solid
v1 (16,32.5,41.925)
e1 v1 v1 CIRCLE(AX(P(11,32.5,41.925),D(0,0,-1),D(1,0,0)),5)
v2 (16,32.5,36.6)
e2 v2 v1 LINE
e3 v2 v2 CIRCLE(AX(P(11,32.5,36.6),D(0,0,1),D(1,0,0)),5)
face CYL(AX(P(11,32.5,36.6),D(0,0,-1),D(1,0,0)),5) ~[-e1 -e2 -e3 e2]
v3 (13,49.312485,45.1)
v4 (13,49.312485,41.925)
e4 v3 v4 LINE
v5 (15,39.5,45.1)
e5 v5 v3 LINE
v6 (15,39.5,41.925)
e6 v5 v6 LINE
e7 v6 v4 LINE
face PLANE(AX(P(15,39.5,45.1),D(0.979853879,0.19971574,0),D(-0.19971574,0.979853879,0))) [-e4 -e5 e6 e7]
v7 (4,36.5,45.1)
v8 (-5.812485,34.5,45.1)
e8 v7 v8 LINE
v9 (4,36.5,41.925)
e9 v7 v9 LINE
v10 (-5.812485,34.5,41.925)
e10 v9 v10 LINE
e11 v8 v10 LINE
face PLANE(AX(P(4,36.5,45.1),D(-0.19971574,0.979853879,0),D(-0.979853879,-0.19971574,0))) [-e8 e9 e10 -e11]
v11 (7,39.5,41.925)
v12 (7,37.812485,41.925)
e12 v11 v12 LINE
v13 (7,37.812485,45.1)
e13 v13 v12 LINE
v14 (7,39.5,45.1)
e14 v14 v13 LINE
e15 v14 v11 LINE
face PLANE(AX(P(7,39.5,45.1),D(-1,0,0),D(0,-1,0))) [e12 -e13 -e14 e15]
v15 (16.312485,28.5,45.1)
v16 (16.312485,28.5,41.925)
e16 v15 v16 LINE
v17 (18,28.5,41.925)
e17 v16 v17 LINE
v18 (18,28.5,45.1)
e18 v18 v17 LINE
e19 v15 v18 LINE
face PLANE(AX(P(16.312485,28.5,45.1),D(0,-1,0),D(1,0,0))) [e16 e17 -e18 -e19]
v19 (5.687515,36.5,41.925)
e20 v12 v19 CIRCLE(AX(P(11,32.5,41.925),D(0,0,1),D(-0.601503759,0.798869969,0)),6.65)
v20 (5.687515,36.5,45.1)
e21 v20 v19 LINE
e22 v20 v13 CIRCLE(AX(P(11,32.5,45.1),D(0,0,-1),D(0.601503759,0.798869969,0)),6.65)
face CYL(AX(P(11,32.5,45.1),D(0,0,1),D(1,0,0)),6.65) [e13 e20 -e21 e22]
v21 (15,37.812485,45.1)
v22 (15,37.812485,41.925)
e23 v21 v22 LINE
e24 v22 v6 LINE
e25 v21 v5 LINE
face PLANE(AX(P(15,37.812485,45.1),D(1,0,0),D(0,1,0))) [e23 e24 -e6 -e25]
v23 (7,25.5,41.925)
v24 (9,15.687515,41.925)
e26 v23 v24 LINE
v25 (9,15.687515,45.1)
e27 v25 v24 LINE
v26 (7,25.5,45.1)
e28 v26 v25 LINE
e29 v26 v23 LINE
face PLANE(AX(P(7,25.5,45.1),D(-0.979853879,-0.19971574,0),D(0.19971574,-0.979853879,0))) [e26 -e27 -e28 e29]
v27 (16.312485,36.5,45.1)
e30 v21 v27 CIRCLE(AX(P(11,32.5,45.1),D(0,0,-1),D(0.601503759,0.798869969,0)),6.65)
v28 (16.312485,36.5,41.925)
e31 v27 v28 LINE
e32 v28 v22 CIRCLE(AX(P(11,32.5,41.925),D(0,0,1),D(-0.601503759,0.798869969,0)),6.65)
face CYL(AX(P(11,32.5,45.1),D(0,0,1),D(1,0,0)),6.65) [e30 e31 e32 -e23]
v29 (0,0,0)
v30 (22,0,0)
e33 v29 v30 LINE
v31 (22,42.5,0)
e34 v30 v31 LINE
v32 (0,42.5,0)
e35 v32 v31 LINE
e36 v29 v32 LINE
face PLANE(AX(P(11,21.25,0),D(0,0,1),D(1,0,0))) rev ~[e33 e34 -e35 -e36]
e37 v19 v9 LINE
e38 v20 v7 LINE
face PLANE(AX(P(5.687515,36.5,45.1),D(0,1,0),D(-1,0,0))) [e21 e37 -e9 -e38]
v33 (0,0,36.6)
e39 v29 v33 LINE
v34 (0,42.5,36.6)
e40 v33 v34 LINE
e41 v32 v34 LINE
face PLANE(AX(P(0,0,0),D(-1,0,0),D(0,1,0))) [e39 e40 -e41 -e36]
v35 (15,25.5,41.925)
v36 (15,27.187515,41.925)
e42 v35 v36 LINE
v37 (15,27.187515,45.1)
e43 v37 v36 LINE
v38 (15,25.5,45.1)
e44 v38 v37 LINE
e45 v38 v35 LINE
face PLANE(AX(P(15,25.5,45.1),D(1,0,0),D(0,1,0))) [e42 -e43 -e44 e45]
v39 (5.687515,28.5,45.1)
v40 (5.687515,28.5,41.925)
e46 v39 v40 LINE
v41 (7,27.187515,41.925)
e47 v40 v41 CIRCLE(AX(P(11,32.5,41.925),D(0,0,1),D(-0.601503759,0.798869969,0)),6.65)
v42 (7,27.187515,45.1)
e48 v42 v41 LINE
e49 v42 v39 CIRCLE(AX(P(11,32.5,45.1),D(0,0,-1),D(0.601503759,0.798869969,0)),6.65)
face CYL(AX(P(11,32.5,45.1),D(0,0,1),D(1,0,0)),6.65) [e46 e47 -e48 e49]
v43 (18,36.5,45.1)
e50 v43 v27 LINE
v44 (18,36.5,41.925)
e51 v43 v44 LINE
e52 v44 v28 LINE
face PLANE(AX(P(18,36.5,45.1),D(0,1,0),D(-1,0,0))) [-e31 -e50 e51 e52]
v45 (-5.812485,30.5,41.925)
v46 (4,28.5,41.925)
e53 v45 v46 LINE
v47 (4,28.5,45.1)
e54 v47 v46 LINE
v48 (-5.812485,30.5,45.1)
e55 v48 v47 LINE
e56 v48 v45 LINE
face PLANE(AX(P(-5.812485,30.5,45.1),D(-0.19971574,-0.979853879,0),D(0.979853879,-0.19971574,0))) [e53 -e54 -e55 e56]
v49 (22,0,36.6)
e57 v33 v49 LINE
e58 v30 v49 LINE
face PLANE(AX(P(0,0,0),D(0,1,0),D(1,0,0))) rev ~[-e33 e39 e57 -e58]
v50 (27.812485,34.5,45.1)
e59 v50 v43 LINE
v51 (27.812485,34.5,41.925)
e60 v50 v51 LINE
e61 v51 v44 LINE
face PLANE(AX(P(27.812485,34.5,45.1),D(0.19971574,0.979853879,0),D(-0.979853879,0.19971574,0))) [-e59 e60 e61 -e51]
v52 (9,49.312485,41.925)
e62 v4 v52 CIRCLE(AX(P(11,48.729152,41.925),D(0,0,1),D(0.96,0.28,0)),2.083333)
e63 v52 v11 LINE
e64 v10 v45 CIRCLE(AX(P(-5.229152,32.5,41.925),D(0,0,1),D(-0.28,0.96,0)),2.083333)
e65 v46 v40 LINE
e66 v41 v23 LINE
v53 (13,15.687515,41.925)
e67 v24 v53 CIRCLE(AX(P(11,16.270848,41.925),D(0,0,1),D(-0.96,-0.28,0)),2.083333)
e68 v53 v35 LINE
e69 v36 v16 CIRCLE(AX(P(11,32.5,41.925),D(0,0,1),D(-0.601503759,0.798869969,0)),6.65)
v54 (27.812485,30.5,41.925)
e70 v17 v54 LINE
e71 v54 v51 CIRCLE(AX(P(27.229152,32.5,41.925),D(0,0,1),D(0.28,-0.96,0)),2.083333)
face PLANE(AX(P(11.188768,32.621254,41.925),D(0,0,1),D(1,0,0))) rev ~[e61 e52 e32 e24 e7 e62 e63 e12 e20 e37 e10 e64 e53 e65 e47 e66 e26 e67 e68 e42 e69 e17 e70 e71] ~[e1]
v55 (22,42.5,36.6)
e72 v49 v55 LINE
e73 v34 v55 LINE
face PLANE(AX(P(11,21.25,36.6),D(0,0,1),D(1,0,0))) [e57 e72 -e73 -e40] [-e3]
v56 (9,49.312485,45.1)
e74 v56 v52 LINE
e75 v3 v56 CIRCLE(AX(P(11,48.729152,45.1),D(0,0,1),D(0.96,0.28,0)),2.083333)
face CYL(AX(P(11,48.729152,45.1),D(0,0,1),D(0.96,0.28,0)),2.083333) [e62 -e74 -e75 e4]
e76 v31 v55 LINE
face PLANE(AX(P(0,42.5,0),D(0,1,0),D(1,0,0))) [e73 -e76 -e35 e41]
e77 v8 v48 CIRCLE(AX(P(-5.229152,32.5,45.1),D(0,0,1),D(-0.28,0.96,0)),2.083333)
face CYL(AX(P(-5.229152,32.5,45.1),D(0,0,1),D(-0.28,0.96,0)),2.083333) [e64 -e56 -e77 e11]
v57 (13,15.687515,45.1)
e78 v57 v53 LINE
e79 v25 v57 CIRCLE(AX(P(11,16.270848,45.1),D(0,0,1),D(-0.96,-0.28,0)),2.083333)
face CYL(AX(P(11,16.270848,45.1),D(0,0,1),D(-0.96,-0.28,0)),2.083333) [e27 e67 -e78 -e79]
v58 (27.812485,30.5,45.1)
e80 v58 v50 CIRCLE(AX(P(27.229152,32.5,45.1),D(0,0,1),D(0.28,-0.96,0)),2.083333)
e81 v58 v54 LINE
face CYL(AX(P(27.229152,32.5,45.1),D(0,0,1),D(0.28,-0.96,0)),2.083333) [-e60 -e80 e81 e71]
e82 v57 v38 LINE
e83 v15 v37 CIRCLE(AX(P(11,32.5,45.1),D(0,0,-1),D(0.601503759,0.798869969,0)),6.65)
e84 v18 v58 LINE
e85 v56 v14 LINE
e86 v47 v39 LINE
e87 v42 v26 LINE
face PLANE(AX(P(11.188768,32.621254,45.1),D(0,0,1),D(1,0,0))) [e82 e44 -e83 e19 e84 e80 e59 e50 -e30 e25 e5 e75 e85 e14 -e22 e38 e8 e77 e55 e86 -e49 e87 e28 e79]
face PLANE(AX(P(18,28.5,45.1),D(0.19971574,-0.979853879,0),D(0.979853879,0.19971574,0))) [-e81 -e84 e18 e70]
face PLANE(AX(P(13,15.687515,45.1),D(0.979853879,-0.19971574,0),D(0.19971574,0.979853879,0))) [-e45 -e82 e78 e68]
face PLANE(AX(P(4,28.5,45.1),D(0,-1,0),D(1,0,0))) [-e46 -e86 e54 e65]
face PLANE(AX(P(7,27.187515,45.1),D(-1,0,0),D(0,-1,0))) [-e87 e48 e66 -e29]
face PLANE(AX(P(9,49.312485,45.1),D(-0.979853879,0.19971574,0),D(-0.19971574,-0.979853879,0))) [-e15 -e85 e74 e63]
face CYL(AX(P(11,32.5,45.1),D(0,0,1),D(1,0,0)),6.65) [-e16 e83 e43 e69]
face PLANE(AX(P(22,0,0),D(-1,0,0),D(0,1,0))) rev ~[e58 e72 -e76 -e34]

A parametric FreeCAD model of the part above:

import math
import FreeCAD as App
import Part
import Sketcher

doc = App.newDocument("Part")
params = doc.addObject("Spreadsheet::Sheet", "Params")
for row, (alias, value) in enumerate([
    ("sketch1_width", "22 mm"),
    ("sketch1_height", "42.5 mm"),
    ("pad1_length", "36.6 mm"),
    ("sketch2_diameter", "10 mm"),
    ("pad2_length", "8.5 mm"),
    ("sketch3_diameter", "13.3 mm"),
    ("pad3_length", "3.175 mm"),
    ("sketch4_radius", "6.65 mm"),
    ("pad4_length", "3.175 mm"),
], start=1):
    params.set(f"A{row}", alias)
    params.set(f"B{row}", "=" + value)
    params.setAlias(f"B{row}", alias)

body = doc.addObject("PartDesign::Body", "Body")

sketch1 = body.newObject("Sketcher::SketchObject", "Sketch")
sketch1.AttachmentSupport = (doc.getObject("XY_Plane"), [""])
sketch1.MapMode = "FlatFace"
sketch1.addGeometry(Part.LineSegment(App.Vector(0, 42, 0), App.Vector(0, 0, 0)), False)
sketch1.addGeometry(Part.LineSegment(App.Vector(0, 0, 0), App.Vector(22, 0, 0)), False)
sketch1.addGeometry(Part.LineSegment(App.Vector(22, 0, 0), App.Vector(22, 42, 0)), False)
sketch1.addGeometry(Part.LineSegment(App.Vector(22, 42, 0), App.Vector(0, 42, 0)), False)
sketch1.addConstraint(Sketcher.Constraint("Coincident", 0, 2, 1, 1))
sketch1.addConstraint(Sketcher.Constraint("Coincident", 1, 2, 2, 1))
sketch1.addConstraint(Sketcher.Constraint("Coincident", 2, 2, 3, 1))
sketch1.addConstraint(Sketcher.Constraint("Coincident", 3, 2, 0, 1))
sketch1.addConstraint(Sketcher.Constraint("Vertical", 0))
sketch1.addConstraint(Sketcher.Constraint("Horizontal", 1))
sketch1.addConstraint(Sketcher.Constraint("Vertical", 2))
sketch1.addConstraint(Sketcher.Constraint("Horizontal", 3))
sketch1.addConstraint(Sketcher.Constraint("Coincident", 0, 2, -1, 1))
sketch1.addConstraint(Sketcher.Constraint("DistanceX", 1, 1, 1, 2, 22.0))
sketch1.addConstraint(Sketcher.Constraint("DistanceY", 0, 2, 0, 1, 42.5))
sketch1.setExpression("Constraints[9]", "Params.sketch1_width")
sketch1.setExpression("Constraints[10]", "Params.sketch1_height")
pad1 = body.newObject("PartDesign::Pad", "Pad")
pad1.Profile = sketch1
pad1.setExpression("Length", "Params.pad1_length")

sketch2 = body.newObject("Sketcher::SketchObject", "Sketch001")
sketch2.AttachmentSupport = (doc.getObject("XY_Plane"), [""])
sketch2.MapMode = "FlatFace"
sketch2.AttachmentOffset = App.Placement(App.Vector(0, 0, 36.6), App.Rotation())
sketch2.addGeometry(Part.Circle(App.Vector(11, 32, 0), App.Vector(0, 0, 1), 5), False)
sketch2.addConstraint(Sketcher.Constraint("Diameter", 0, 10.0))
sketch2.addConstraint(Sketcher.Constraint("DistanceX", -1, 1, 0, 3, 11.0))
sketch2.addConstraint(Sketcher.Constraint("DistanceY", -1, 1, 0, 3, 32.5))
sketch2.setExpression("Constraints[0]", "Params.sketch2_diameter")
pad2 = body.newObject("PartDesign::Pad", "Pad001")
pad2.Profile = sketch2
pad2.setExpression("Length", "Params.pad2_length")

sketch3 = body.newObject("Sketcher::SketchObject", "Sketch002")
sketch3.AttachmentSupport = (doc.getObject("XY_Plane"), [""])
sketch3.MapMode = "FlatFace"
sketch3.AttachmentOffset = App.Placement(App.Vector(0, 0, 45.1), App.Rotation())
sketch3.addGeometry(Part.Circle(App.Vector(11, 32, 0), App.Vector(0, 0, 1), 7), False)
sketch3.addConstraint(Sketcher.Constraint("Diameter", 0, 13.3))
sketch3.addConstraint(Sketcher.Constraint("DistanceX", -1, 1, 0, 3, 11.0))
sketch3.addConstraint(Sketcher.Constraint("DistanceY", -1, 1, 0, 3, 32.5))
sketch3.setExpression("Constraints[0]", "Params.sketch3_diameter")
pad3 = body.newObject("PartDesign::Pad", "Pad002")
pad3.Profile = sketch3
pad3.setExpression("Length", "Params.pad3_length")
pad3.Reversed = True
body2 = doc.addObject("PartDesign::Body", "Body001")

sketch4 = body2.newObject("Sketcher::SketchObject", "Sketch003")
sketch4.AttachmentSupport = (doc.getObject("XY_Plane001"), [""])
sketch4.MapMode = "FlatFace"
sketch4.AttachmentOffset = App.Placement(App.Vector(0, 0, 45.1), App.Rotation())
sketch4.addGeometry(Part.ArcOfCircle(Part.Circle(App.Vector(11, 32.5, 0), App.Vector(0, 0, 1), 6.7), math.radians(53), math.radians(127)), False)
sketch4.addGeometry(Part.LineSegment(App.Vector(15, 37.8, 0), App.Vector(15, 39.5, 0)), False)
sketch4.addGeometry(Part.LineSegment(App.Vector(15, 39.5, 0), App.Vector(13, 49.3, 0)), False)
sketch4.addGeometry(Part.ArcOfCircle(Part.Circle(App.Vector(11, 48.7, 0), App.Vector(0, 0, 1), 2.1), math.radians(16), math.radians(164)), False)
sketch4.addGeometry(Part.LineSegment(App.Vector(9, 49.3, 0), App.Vector(7, 39.5, 0)), False)
sketch4.addGeometry(Part.LineSegment(App.Vector(7, 39.5, 0), App.Vector(7, 37.8, 0)), False)
sketch4.addConstraint(Sketcher.Constraint("Coincident", 0, 1, 1, 1))
sketch4.addConstraint(Sketcher.Constraint("Coincident", 1, 2, 2, 1))
sketch4.addConstraint(Sketcher.Constraint("Coincident", 2, 2, 3, 1))
sketch4.addConstraint(Sketcher.Constraint("Coincident", 3, 2, 4, 1))
sketch4.addConstraint(Sketcher.Constraint("Coincident", 4, 2, 5, 1))
sketch4.addConstraint(Sketcher.Constraint("Coincident", 5, 2, 0, 2))
sketch4.addConstraint(Sketcher.Constraint("Vertical", 1))
sketch4.addConstraint(Sketcher.Constraint("Vertical", 5))
sketch4.addConstraint(Sketcher.Constraint("Horizontal", 2, 2, 3, 2))
sketch4.addConstraint(Sketcher.Constraint("Horizontal", 1, 2, 4, 2))
sketch4.addConstraint(Sketcher.Constraint("Horizontal", 0, 1, 5, 2))
sketch4.addConstraint(Sketcher.Constraint("Vertical", 0, 3, 3, 3))
sketch4.addConstraint(Sketcher.Constraint("Radius", 0, 6.65))
sketch4.addConstraint(Sketcher.Constraint("DistanceX", -1, 1, 0, 3, 11.0))
sketch4.addConstraint(Sketcher.Constraint("DistanceX", -1, 1, 0, 1, 15.0))
sketch4.addConstraint(Sketcher.Constraint("DistanceX", -1, 1, 2, 2, 13.0))
sketch4.addConstraint(Sketcher.Constraint("DistanceY", 0, 3, 1, 2, 7.0))
sketch4.addConstraint(Sketcher.Constraint("DistanceY", -1, 1, 0, 3, 32.5))
sketch4.addConstraint(Sketcher.Constraint("DistanceY", 0, 1, 2, 2, 11.5))
sketch4.addConstraint(Sketcher.Constraint("Radius", 3, 2.083333))
sketch4.setExpression("Constraints[12]", "Params.sketch4_radius")
pad4 = body2.newObject("PartDesign::Pad", "Pad003")
pad4.Profile = sketch4
pad4.setExpression("Length", "Params.pad4_length")
pad4.Reversed = True
doc.recompute()

body3 = doc.addObject("PartDesign::Body", "Body002")
body3.BaseFeature = body2
boolean = body.newObject("PartDesign::Boolean", "Boolean")
boolean.Type = "Fuse"
boolean.addObjects([body3])
doc.recompute()

body4 = doc.addObject("PartDesign::Body", "Body003")
body4.BaseFeature = body2
body4.Placement = App.Placement(App.Vector(43.5, 21.5, 0), App.Rotation(App.Vector(0, 0, 1), 90))
boolean2 = body.newObject("PartDesign::Boolean", "Boolean001")
boolean2.Type = "Fuse"
boolean2.addObjects([body4])
doc.recompute()

body5 = doc.addObject("PartDesign::Body", "Body004")
body5.BaseFeature = body2
body5.Placement = App.Placement(App.Vector(22, 65, 0), App.Rotation(App.Vector(0, 0, 1), 180))
boolean3 = body.newObject("PartDesign::Boolean", "Boolean002")
boolean3.Type = "Fuse"
boolean3.addObjects([body5])
doc.recompute()

body2.Placement = App.Placement(App.Vector(-21.5, 43.5, 0), App.Rotation(App.Vector(0, 0, 1), 270))
boolean4 = body.newObject("PartDesign::Boolean", "Boolean003")
boolean4.Type = "Fuse"
boolean4.addObjects([body2])

doc.recompute()
